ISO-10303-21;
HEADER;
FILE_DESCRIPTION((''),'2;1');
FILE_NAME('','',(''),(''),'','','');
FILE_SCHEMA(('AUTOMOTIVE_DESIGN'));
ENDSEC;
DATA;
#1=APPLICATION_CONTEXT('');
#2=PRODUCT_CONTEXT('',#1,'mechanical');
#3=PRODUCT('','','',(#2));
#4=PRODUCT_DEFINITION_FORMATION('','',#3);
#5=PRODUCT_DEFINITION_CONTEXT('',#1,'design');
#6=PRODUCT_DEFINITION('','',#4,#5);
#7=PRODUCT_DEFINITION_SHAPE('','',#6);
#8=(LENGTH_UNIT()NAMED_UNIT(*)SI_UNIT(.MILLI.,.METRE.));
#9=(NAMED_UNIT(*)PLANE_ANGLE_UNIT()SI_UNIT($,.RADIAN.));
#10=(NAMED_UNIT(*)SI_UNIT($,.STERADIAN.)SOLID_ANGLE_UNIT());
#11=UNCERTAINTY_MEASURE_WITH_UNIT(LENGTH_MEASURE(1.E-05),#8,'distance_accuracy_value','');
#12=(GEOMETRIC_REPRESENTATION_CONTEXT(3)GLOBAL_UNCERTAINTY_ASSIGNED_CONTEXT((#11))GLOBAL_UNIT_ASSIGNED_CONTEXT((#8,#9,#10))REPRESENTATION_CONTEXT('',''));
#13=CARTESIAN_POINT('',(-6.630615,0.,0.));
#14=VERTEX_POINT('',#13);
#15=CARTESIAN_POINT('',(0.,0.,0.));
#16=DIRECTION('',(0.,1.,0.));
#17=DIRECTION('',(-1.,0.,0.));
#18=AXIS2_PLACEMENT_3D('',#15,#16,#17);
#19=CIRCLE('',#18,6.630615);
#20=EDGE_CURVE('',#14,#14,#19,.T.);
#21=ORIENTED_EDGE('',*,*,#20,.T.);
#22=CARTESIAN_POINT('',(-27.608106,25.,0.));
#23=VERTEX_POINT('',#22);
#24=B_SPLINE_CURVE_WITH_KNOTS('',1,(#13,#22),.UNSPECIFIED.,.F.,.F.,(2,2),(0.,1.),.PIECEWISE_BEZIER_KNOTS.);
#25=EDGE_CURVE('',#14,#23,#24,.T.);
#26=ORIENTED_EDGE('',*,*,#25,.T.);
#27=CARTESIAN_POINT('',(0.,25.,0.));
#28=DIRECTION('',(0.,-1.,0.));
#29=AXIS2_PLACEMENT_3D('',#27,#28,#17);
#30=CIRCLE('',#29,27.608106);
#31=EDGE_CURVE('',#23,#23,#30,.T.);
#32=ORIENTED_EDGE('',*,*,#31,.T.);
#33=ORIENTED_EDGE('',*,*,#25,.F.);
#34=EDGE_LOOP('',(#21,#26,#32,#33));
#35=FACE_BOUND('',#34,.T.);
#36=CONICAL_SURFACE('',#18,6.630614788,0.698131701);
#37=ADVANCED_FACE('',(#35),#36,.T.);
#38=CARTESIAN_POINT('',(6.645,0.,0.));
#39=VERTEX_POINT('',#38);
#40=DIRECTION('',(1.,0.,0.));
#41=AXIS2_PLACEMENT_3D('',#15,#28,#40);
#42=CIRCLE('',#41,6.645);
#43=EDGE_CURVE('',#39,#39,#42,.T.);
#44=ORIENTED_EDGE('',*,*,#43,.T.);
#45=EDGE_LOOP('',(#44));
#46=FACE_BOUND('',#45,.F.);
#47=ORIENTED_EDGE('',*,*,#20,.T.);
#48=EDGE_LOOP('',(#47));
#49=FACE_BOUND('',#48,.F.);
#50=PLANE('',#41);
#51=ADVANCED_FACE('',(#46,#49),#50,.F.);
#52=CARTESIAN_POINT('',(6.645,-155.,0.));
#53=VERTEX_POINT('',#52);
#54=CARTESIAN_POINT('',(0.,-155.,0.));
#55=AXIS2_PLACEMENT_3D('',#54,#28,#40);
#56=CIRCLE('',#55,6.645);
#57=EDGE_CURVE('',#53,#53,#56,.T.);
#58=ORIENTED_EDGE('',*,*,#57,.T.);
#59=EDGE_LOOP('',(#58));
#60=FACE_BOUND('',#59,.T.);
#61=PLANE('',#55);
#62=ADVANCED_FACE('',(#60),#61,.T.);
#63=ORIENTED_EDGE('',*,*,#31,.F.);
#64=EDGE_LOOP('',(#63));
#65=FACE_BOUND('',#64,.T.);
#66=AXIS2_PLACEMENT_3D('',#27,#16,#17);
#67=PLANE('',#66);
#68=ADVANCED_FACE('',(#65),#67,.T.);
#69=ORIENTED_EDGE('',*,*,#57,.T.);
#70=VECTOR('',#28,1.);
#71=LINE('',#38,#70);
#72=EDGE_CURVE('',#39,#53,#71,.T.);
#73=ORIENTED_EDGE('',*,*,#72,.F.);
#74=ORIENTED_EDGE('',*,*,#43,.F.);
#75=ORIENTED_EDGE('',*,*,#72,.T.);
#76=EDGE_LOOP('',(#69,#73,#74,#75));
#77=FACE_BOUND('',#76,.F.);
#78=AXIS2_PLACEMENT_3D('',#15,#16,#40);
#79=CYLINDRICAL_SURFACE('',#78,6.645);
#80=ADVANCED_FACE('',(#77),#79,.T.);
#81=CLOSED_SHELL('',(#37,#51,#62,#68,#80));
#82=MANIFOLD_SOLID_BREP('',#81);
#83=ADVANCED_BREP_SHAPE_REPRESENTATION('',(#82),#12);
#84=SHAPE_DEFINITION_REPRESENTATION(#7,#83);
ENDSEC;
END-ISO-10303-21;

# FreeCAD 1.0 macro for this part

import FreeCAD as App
import Part
import Sketcher
Q = App.Units.Quantity

doc = App.newDocument("Part")
body = doc.addObject("PartDesign::Body", "Body")

sketch1 = body.newObject("Sketcher::SketchObject", "Sketch")
sketch1.AttachmentSupport = (doc.getObject("XZ_Plane"), [""])
sketch1.MapMode = "FlatFace"
sketch1.addGeometry(Part.Circle(App.Vector(0, 0, 0), App.Vector(0, 0, 1), 7), False)
sketch1.addConstraint([
    Sketcher.Constraint("Coincident", 0, 3, -1, 1),
    Sketcher.Constraint("Diameter", 0, Q("13.29 mm")),
])
pad1 = body.newObject("PartDesign::Pad", "Pad")
pad1.Profile = sketch1
pad1.Length = 155

sketch2 = body.newObject("Sketcher::SketchObject", "Sketch001")
sketch2.AttachmentSupport = (doc.getObject("XZ_Plane"), [""])
sketch2.MapMode = "FlatFace"
sketch2.addGeometry(Part.Circle(App.Vector(0, 0, 0), App.Vector(0, 0, 1), 7), False)
sketch2.addConstraint([
    Sketcher.Constraint("Coincident", 0, 3, -1, 1),
    Sketcher.Constraint("Diameter", 0, Q("13.26123 mm")),
])
pad2 = body.newObject("PartDesign::Pad", "Pad001")
pad2.Profile = sketch2
pad2.Length = 25
pad2.Reversed = True
pad2.TaperAngle = 40

doc.recompute()
